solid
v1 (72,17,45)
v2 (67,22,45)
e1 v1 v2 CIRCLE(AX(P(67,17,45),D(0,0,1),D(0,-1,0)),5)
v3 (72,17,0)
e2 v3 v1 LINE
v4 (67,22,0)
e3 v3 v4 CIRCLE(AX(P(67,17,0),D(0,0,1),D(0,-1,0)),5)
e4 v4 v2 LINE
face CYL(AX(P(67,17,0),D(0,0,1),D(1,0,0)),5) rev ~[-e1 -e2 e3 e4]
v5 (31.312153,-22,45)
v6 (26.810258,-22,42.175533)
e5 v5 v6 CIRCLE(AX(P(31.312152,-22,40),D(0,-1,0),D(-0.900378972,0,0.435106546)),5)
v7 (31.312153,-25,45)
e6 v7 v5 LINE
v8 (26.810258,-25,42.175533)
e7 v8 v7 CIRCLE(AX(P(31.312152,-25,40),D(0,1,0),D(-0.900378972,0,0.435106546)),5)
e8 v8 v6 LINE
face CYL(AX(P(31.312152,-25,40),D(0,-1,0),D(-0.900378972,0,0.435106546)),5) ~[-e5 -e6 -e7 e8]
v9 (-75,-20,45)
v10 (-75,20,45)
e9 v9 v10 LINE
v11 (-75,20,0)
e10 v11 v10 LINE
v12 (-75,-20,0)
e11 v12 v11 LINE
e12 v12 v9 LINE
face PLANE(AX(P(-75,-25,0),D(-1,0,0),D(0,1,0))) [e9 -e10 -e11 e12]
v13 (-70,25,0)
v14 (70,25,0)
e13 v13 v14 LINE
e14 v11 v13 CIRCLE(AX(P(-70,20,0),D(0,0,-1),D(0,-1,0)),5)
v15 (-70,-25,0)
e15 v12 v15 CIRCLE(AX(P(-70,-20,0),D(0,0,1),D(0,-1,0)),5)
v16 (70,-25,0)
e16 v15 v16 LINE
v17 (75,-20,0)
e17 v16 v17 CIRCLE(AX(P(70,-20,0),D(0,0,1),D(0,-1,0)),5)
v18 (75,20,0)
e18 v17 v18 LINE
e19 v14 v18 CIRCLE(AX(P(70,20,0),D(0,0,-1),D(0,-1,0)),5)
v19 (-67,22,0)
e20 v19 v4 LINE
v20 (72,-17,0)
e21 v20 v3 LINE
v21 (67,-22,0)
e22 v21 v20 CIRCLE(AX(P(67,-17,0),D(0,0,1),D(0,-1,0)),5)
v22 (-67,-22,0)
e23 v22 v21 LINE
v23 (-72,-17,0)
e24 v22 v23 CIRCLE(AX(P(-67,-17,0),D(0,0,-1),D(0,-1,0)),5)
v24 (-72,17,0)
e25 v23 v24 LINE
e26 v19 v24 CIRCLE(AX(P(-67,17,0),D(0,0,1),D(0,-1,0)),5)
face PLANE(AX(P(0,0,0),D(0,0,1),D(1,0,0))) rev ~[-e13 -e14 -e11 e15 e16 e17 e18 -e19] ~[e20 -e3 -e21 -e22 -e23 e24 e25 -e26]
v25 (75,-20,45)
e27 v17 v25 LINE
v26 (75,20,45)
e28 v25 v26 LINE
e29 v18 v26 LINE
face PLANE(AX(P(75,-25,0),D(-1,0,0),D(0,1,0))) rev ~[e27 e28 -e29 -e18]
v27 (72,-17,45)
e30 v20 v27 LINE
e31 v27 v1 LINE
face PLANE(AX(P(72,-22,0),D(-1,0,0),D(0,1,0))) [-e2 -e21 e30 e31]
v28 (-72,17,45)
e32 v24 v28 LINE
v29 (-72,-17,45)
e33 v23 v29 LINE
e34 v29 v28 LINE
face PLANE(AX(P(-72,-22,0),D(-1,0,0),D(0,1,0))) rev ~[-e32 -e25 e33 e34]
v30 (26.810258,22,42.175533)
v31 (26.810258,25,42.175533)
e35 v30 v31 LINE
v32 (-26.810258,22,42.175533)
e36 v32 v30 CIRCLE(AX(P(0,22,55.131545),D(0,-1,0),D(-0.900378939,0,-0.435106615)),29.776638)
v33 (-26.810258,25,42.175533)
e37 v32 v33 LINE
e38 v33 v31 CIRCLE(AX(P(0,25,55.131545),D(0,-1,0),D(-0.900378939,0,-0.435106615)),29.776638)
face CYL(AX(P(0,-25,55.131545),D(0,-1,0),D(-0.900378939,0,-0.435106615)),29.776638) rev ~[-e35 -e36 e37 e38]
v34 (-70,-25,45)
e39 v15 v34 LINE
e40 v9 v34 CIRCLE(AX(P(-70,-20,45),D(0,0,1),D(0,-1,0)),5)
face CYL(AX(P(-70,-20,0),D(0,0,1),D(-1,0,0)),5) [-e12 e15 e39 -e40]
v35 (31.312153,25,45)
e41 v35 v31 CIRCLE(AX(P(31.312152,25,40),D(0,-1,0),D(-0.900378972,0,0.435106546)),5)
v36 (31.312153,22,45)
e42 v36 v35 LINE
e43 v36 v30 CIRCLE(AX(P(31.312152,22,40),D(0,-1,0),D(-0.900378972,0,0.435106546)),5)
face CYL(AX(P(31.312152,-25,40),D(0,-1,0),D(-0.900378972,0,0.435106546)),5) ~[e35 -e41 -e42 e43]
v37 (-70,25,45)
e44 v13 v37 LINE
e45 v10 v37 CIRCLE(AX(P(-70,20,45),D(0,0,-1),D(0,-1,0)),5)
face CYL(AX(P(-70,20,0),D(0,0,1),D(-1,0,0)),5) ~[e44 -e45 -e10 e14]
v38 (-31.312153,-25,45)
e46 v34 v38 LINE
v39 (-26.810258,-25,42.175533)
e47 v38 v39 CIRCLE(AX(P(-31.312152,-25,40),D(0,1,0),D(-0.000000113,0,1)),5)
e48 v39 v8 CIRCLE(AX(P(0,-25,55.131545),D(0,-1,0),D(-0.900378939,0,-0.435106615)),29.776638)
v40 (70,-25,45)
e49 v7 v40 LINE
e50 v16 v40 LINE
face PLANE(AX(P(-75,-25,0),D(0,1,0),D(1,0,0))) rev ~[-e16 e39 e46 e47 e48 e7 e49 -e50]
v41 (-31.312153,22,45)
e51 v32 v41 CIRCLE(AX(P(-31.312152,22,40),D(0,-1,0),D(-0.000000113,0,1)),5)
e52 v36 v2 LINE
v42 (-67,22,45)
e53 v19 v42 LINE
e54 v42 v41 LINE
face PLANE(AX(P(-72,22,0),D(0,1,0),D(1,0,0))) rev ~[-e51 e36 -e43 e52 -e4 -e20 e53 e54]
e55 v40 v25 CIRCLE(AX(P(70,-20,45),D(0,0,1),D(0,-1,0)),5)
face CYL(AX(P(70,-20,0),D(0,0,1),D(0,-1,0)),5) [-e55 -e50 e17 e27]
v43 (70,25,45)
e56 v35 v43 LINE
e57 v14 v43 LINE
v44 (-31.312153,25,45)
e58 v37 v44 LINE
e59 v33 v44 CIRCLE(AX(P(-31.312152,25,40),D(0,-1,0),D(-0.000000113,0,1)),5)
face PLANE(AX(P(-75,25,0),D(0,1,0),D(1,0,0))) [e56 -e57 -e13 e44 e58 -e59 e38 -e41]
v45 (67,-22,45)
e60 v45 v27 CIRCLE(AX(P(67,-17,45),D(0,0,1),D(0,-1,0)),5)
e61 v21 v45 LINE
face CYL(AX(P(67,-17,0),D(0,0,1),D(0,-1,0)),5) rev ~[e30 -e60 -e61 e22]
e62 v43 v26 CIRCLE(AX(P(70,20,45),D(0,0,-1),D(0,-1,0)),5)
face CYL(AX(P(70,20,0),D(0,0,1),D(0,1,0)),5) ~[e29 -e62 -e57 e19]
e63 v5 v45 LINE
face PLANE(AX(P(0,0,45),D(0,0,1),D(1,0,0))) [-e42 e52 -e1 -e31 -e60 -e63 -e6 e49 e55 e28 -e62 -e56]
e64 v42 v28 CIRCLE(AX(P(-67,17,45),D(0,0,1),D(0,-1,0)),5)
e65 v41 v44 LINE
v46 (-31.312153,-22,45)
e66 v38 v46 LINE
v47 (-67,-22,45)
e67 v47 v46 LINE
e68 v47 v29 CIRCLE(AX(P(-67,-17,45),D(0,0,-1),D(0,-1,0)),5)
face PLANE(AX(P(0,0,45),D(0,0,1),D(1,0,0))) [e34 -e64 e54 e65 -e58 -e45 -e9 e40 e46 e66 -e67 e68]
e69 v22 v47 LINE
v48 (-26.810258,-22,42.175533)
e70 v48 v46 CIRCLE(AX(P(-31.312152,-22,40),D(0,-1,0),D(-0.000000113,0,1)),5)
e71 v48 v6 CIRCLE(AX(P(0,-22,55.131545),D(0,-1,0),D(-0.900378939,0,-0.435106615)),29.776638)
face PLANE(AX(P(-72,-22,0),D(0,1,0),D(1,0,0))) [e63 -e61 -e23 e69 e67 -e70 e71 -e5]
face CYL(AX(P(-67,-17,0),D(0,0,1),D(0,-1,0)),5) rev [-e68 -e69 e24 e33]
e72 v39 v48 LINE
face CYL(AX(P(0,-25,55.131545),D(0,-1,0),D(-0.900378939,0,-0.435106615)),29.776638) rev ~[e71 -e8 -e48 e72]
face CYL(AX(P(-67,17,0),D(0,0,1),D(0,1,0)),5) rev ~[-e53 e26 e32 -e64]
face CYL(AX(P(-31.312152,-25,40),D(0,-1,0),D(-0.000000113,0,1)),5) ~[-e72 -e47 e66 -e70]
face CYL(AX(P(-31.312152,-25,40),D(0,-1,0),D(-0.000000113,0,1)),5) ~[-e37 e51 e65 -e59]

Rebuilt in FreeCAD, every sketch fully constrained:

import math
import FreeCAD as App
import Part
import Sketcher
from FreeCAD import Vector


def edges_at(feature, points):
    """Names of the edges that pass closest to the given points."""
    edges = feature.Shape.Edges
    near = lambda p: min(range(len(edges)), key=lambda i: edges[i].distToShape(Part.Vertex(*p))[0])
    return sorted({f"Edge{near(p) + 1}" for p in points})


def add_polygon(sketch, points):
    """Adds a closed chain of lines whose ends are joined by coincident constraints."""
    first, n = sketch.GeometryCount, len(points)
    for a, b in zip(points, points[1:] + points[:1]):
        sketch.addGeometry(Part.LineSegment(App.Vector(*a, 0), App.Vector(*b, 0)), False)
    for i in range(n):
        sketch.addConstraint(Sketcher.Constraint("Coincident", first + i, 2, first + (i + 1) % n, 1))

doc = App.newDocument("Part")
body = doc.addObject("PartDesign::Body", "Body")

# Sketch on XY plane
sketch1 = doc.addObject("Sketcher::SketchObject", "Sketch")
body.addObject(sketch1)
sketch1.AttachmentSupport = (doc.XY_Plane, [""])
sketch1.MapMode = "FlatFace"
add_polygon(sketch1, [(-75, 25), (-75, -25), (75, -25), (75, 25)])  # lines 0-3
add_polygon(sketch1, [(72, -22), (-72, -22), (-72, 22), (72, 22)])  # lines 4-7
sketch1.addConstraint(Sketcher.Constraint("Vertical", 0))
sketch1.addConstraint(Sketcher.Constraint("Horizontal", 1))
sketch1.addConstraint(Sketcher.Constraint("Vertical", 2))
sketch1.addConstraint(Sketcher.Constraint("Horizontal", 3))
sketch1.addConstraint(Sketcher.Constraint("Horizontal", 4))
sketch1.addConstraint(Sketcher.Constraint("Vertical", 5))
sketch1.addConstraint(Sketcher.Constraint("Horizontal", 6))
sketch1.addConstraint(Sketcher.Constraint("Vertical", 7))
sketch1.addConstraint(Sketcher.Constraint("Symmetric", 0, 2, 2, 2, -1, 1))
sketch1.addConstraint(Sketcher.Constraint("Symmetric", 4, 2, 6, 2, -1, 1))
sketch1.addConstraint(Sketcher.Constraint("DistanceX", 1, 1, 1, 2, 150.0))
sketch1.addConstraint(Sketcher.Constraint("DistanceX", 4, 2, 4, 1, 144.0))
sketch1.addConstraint(Sketcher.Constraint("DistanceY", 0, 2, 0, 1, 50.0))
sketch1.addConstraint(Sketcher.Constraint("DistanceY", 5, 1, 5, 2, 44.0))
pad1 = doc.addObject("PartDesign::Pad", "Pad")
body.addObject(pad1)
pad1.Profile = sketch1
pad1.Length = 45

# Sketch on XZ plane
sketch2 = doc.addObject("Sketcher::SketchObject", "Sketch001")
body.addObject(sketch2)
sketch2.AttachmentSupport = (doc.XZ_Plane, [""])
sketch2.MapMode = "FlatFace"
sketch2.AttachmentOffset = App.Placement(Vector(0, 0, 25), App.Rotation())
sketch2.addGeometry(Part.ArcOfCircle(Part.Circle(Vector(-31.3, 40, 0), Vector(0, 0, 1), 5), math.radians(26), math.radians(90)), False)
sketch2.addGeometry(Part.ArcOfCircle(Part.Circle(Vector(0, 55.1, 0), Vector(0, 0, 1), 29.8), math.radians(-154), math.radians(-26)), False)
sketch2.addGeometry(Part.ArcOfCircle(Part.Circle(Vector(31.3, 40, 0), Vector(0, 0, 1), 5), math.radians(90), math.radians(154)), False)
sketch2.addGeometry(Part.LineSegment(Vector(31.3, 45, 0), Vector(-31.3, 45, 0)), False)
sketch2.addConstraint(Sketcher.Constraint("Tangent", 0, 1, 1, 1))
sketch2.addConstraint(Sketcher.Constraint("Tangent", 1, 2, 2, 2))
sketch2.addConstraint(Sketcher.Constraint("Tangent", 2, 1, 3, 1))
sketch2.addConstraint(Sketcher.Constraint("Tangent", 3, 2, 0, 2))
sketch2.addConstraint(Sketcher.Constraint("Horizontal", 3))
sketch2.addConstraint(Sketcher.Constraint("Equal", 0, 2))
sketch2.addConstraint(Sketcher.Constraint("PointOnObject", 1, 3, -2))
sketch2.addConstraint(Sketcher.Constraint("Radius", 0, 5.0))
sketch2.addConstraint(Sketcher.Constraint("DistanceY", -1, 1, 0, 3, 40.0))
sketch2.addConstraint(Sketcher.Constraint("Radius", 1, 29.776638))
sketch2.addConstraint(Sketcher.Constraint("DistanceX", 3, 2, 3, 1, 62.624306))
pocket1 = doc.addObject("PartDesign::Pocket", "Pocket")
body.addObject(pocket1)
pocket1.Profile = sketch2
pocket1.Length = 53.9
doc.recompute()

fillet = doc.addObject("PartDesign::Fillet", "Fillet")
body.addObject(fillet)
fillet.Base = (pocket1, edges_at(pocket1, [
    (-75, 25, 22.5),
    (-75, -25, 22.5),
    (75, 25, 22.5),
    (75, -25, 22.5),
    (-72, -22, 22.5),
    (72, -22, 22.5),
    (72, 22, 22.5),
    (-72, 22, 22.5),
]))
fillet.Radius = 5

doc.recompute()
